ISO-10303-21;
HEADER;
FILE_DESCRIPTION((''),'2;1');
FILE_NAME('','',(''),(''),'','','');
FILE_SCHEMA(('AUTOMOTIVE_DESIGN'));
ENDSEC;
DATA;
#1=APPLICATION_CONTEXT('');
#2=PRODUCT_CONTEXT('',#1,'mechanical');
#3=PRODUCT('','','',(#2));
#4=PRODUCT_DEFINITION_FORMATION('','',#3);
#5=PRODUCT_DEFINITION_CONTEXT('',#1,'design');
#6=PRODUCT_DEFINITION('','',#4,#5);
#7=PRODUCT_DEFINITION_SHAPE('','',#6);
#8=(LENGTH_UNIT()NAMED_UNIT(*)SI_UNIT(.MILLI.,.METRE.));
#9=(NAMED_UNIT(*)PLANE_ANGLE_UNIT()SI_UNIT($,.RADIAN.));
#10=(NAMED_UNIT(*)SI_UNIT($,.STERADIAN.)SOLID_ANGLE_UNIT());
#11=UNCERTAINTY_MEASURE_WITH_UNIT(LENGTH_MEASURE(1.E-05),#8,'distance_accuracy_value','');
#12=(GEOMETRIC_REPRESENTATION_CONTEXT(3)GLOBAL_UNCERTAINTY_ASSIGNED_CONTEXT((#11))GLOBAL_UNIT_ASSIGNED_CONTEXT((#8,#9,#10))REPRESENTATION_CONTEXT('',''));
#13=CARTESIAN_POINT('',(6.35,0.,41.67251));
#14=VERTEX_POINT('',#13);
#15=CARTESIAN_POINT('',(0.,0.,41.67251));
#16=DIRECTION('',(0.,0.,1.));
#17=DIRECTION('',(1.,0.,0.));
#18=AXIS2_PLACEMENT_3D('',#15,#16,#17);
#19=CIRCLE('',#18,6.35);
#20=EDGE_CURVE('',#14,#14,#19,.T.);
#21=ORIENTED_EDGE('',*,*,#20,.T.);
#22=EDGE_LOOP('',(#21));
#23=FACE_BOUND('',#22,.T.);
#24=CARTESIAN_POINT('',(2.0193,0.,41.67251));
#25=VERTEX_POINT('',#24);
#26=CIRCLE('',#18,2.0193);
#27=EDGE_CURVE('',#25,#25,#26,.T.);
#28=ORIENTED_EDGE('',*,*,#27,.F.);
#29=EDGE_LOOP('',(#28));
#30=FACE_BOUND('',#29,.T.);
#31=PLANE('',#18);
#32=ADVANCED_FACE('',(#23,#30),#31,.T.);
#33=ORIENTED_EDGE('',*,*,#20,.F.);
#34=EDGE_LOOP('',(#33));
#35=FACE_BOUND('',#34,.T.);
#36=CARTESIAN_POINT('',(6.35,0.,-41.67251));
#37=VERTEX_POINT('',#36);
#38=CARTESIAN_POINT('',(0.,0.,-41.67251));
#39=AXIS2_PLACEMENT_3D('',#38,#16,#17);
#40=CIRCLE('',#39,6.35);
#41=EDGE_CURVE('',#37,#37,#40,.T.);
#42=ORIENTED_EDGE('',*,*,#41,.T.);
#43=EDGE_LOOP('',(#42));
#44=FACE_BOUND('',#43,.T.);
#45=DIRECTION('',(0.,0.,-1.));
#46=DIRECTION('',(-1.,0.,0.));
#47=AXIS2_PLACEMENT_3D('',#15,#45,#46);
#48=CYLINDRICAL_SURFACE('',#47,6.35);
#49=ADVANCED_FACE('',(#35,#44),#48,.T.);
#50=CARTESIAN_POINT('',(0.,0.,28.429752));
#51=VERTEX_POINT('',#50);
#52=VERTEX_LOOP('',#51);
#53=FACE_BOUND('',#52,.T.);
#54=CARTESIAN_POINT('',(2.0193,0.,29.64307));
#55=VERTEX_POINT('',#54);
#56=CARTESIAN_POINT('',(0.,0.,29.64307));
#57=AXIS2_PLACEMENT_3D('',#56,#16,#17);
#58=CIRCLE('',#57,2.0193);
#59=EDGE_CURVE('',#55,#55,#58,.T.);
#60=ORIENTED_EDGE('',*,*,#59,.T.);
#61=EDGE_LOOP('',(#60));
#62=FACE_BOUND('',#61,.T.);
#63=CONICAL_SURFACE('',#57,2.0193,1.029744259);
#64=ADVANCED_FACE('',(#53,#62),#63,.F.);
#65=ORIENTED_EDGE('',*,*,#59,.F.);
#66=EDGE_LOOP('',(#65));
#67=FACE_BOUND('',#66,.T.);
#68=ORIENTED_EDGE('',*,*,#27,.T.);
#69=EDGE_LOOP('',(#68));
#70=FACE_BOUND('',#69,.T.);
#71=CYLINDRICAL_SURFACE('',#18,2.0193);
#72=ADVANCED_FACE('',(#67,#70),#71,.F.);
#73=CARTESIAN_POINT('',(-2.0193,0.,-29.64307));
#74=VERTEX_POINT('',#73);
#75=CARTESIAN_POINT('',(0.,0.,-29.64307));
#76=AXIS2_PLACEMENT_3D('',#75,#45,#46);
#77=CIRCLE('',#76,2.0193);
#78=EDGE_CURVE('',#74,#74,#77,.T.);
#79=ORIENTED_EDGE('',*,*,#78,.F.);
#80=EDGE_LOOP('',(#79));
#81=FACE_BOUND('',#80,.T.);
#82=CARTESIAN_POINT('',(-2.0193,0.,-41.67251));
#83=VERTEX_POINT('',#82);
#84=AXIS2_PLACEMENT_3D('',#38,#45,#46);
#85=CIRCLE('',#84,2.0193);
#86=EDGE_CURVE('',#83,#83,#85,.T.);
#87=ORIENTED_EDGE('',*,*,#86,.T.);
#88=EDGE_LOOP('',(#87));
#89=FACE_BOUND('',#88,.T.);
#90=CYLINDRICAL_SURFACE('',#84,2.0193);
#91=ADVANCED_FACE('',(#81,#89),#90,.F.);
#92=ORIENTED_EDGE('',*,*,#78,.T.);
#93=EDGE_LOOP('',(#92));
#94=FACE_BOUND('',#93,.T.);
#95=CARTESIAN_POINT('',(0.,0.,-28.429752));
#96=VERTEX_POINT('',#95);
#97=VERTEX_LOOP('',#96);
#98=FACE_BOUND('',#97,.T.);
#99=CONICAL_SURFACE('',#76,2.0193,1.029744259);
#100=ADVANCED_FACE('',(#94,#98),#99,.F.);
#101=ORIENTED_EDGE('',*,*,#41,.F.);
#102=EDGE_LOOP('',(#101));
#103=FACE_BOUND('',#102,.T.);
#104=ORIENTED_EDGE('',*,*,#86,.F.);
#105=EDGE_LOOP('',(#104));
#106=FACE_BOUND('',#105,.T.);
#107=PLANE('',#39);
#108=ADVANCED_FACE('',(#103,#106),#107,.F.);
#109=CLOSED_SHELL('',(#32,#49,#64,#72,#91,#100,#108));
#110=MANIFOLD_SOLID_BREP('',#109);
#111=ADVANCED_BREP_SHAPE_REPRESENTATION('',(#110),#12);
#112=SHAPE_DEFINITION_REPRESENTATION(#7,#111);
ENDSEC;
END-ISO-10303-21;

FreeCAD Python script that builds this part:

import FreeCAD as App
import Part
import Sketcher
from FreeCAD import Vector
Q = App.Units.Quantity

doc = App.newDocument("Part")
body = doc.addObject("PartDesign::Body", "Body")

# Sketch on XY plane
sketch1 = body.newObject("Sketcher::SketchObject", "Sketch")
sketch1.AttachmentSupport = (doc.getObject("XY_Plane"), [""])
sketch1.MapMode = "FlatFace"
sketch1.addGeometry(Part.Circle(Vector(0, 0, 0), Vector(0, 0, 1), 6.35), False)
sketch1.addConstraint(Sketcher.Constraint("Coincident", 0, 3, -1, 1))
sketch1.addConstraint(Sketcher.Constraint("Diameter", 0, Q("0.5 in")))
pad1 = body.newObject("PartDesign::Pad", "Pad")
pad1.Profile = sketch1
pad1.Length = Q("3.2813 in")
pad1.Midplane = True

# Sketch on XY plane
sketch2 = body.newObject("Sketcher::SketchObject", "Sketch001")
sketch2.AttachmentSupport = (doc.getObject("XY_Plane"), [""])
sketch2.MapMode = "FlatFace"
sketch2.AttachmentOffset = App.Placement(Vector(0, 0, -41.67251), App.Rotation())
sketch2.addGeometry(Part.Circle(Vector(0, 0, 0), Vector(0, 0, 1), 2.0193), False)
sketch2.addConstraint(Sketcher.Constraint("Coincident", 0, 3, -1, 1))
sketch2.addConstraint(Sketcher.Constraint("Diameter", 0, Q("0.159 in")))
doc.recompute()
hole = body.newObject("PartDesign::Hole", "Hole")
hole.Profile = sketch2
hole.ThreadType = "None"
hole.Diameter = Q("0.159 in")
hole.DepthType = "Dimension"
hole.Depth = Q("0.4736 in")
hole.DrillPoint = "Angled"
hole.DrillPointAngle = 118
hole.Reversed = True

# Sketch on XY plane
sketch3 = body.newObject("Sketcher::SketchObject", "Sketch002")
sketch3.AttachmentSupport = (doc.getObject("XY_Plane"), [""])
sketch3.MapMode = "FlatFace"
sketch3.AttachmentOffset = App.Placement(Vector(0, 0, 41.67251), App.Rotation())
sketch3.addGeometry(Part.Circle(Vector(0, 0, 0), Vector(0, 0, 1), 2.0193), False)
sketch3.addConstraint(Sketcher.Constraint("Coincident", 0, 3, -1, 1))
sketch3.addConstraint(Sketcher.Constraint("Diameter", 0, Q("0.159 in")))
doc.recompute()
hole2 = body.newObject("PartDesign::Hole", "Hole001")
hole2.Profile = sketch3
hole2.ThreadType = "None"
hole2.Diameter = Q("0.159 in")
hole2.DepthType = "Dimension"
hole2.Depth = Q("0.4736 in")
hole2.DrillPoint = "Angled"
hole2.DrillPointAngle = 118

doc.recompute()
